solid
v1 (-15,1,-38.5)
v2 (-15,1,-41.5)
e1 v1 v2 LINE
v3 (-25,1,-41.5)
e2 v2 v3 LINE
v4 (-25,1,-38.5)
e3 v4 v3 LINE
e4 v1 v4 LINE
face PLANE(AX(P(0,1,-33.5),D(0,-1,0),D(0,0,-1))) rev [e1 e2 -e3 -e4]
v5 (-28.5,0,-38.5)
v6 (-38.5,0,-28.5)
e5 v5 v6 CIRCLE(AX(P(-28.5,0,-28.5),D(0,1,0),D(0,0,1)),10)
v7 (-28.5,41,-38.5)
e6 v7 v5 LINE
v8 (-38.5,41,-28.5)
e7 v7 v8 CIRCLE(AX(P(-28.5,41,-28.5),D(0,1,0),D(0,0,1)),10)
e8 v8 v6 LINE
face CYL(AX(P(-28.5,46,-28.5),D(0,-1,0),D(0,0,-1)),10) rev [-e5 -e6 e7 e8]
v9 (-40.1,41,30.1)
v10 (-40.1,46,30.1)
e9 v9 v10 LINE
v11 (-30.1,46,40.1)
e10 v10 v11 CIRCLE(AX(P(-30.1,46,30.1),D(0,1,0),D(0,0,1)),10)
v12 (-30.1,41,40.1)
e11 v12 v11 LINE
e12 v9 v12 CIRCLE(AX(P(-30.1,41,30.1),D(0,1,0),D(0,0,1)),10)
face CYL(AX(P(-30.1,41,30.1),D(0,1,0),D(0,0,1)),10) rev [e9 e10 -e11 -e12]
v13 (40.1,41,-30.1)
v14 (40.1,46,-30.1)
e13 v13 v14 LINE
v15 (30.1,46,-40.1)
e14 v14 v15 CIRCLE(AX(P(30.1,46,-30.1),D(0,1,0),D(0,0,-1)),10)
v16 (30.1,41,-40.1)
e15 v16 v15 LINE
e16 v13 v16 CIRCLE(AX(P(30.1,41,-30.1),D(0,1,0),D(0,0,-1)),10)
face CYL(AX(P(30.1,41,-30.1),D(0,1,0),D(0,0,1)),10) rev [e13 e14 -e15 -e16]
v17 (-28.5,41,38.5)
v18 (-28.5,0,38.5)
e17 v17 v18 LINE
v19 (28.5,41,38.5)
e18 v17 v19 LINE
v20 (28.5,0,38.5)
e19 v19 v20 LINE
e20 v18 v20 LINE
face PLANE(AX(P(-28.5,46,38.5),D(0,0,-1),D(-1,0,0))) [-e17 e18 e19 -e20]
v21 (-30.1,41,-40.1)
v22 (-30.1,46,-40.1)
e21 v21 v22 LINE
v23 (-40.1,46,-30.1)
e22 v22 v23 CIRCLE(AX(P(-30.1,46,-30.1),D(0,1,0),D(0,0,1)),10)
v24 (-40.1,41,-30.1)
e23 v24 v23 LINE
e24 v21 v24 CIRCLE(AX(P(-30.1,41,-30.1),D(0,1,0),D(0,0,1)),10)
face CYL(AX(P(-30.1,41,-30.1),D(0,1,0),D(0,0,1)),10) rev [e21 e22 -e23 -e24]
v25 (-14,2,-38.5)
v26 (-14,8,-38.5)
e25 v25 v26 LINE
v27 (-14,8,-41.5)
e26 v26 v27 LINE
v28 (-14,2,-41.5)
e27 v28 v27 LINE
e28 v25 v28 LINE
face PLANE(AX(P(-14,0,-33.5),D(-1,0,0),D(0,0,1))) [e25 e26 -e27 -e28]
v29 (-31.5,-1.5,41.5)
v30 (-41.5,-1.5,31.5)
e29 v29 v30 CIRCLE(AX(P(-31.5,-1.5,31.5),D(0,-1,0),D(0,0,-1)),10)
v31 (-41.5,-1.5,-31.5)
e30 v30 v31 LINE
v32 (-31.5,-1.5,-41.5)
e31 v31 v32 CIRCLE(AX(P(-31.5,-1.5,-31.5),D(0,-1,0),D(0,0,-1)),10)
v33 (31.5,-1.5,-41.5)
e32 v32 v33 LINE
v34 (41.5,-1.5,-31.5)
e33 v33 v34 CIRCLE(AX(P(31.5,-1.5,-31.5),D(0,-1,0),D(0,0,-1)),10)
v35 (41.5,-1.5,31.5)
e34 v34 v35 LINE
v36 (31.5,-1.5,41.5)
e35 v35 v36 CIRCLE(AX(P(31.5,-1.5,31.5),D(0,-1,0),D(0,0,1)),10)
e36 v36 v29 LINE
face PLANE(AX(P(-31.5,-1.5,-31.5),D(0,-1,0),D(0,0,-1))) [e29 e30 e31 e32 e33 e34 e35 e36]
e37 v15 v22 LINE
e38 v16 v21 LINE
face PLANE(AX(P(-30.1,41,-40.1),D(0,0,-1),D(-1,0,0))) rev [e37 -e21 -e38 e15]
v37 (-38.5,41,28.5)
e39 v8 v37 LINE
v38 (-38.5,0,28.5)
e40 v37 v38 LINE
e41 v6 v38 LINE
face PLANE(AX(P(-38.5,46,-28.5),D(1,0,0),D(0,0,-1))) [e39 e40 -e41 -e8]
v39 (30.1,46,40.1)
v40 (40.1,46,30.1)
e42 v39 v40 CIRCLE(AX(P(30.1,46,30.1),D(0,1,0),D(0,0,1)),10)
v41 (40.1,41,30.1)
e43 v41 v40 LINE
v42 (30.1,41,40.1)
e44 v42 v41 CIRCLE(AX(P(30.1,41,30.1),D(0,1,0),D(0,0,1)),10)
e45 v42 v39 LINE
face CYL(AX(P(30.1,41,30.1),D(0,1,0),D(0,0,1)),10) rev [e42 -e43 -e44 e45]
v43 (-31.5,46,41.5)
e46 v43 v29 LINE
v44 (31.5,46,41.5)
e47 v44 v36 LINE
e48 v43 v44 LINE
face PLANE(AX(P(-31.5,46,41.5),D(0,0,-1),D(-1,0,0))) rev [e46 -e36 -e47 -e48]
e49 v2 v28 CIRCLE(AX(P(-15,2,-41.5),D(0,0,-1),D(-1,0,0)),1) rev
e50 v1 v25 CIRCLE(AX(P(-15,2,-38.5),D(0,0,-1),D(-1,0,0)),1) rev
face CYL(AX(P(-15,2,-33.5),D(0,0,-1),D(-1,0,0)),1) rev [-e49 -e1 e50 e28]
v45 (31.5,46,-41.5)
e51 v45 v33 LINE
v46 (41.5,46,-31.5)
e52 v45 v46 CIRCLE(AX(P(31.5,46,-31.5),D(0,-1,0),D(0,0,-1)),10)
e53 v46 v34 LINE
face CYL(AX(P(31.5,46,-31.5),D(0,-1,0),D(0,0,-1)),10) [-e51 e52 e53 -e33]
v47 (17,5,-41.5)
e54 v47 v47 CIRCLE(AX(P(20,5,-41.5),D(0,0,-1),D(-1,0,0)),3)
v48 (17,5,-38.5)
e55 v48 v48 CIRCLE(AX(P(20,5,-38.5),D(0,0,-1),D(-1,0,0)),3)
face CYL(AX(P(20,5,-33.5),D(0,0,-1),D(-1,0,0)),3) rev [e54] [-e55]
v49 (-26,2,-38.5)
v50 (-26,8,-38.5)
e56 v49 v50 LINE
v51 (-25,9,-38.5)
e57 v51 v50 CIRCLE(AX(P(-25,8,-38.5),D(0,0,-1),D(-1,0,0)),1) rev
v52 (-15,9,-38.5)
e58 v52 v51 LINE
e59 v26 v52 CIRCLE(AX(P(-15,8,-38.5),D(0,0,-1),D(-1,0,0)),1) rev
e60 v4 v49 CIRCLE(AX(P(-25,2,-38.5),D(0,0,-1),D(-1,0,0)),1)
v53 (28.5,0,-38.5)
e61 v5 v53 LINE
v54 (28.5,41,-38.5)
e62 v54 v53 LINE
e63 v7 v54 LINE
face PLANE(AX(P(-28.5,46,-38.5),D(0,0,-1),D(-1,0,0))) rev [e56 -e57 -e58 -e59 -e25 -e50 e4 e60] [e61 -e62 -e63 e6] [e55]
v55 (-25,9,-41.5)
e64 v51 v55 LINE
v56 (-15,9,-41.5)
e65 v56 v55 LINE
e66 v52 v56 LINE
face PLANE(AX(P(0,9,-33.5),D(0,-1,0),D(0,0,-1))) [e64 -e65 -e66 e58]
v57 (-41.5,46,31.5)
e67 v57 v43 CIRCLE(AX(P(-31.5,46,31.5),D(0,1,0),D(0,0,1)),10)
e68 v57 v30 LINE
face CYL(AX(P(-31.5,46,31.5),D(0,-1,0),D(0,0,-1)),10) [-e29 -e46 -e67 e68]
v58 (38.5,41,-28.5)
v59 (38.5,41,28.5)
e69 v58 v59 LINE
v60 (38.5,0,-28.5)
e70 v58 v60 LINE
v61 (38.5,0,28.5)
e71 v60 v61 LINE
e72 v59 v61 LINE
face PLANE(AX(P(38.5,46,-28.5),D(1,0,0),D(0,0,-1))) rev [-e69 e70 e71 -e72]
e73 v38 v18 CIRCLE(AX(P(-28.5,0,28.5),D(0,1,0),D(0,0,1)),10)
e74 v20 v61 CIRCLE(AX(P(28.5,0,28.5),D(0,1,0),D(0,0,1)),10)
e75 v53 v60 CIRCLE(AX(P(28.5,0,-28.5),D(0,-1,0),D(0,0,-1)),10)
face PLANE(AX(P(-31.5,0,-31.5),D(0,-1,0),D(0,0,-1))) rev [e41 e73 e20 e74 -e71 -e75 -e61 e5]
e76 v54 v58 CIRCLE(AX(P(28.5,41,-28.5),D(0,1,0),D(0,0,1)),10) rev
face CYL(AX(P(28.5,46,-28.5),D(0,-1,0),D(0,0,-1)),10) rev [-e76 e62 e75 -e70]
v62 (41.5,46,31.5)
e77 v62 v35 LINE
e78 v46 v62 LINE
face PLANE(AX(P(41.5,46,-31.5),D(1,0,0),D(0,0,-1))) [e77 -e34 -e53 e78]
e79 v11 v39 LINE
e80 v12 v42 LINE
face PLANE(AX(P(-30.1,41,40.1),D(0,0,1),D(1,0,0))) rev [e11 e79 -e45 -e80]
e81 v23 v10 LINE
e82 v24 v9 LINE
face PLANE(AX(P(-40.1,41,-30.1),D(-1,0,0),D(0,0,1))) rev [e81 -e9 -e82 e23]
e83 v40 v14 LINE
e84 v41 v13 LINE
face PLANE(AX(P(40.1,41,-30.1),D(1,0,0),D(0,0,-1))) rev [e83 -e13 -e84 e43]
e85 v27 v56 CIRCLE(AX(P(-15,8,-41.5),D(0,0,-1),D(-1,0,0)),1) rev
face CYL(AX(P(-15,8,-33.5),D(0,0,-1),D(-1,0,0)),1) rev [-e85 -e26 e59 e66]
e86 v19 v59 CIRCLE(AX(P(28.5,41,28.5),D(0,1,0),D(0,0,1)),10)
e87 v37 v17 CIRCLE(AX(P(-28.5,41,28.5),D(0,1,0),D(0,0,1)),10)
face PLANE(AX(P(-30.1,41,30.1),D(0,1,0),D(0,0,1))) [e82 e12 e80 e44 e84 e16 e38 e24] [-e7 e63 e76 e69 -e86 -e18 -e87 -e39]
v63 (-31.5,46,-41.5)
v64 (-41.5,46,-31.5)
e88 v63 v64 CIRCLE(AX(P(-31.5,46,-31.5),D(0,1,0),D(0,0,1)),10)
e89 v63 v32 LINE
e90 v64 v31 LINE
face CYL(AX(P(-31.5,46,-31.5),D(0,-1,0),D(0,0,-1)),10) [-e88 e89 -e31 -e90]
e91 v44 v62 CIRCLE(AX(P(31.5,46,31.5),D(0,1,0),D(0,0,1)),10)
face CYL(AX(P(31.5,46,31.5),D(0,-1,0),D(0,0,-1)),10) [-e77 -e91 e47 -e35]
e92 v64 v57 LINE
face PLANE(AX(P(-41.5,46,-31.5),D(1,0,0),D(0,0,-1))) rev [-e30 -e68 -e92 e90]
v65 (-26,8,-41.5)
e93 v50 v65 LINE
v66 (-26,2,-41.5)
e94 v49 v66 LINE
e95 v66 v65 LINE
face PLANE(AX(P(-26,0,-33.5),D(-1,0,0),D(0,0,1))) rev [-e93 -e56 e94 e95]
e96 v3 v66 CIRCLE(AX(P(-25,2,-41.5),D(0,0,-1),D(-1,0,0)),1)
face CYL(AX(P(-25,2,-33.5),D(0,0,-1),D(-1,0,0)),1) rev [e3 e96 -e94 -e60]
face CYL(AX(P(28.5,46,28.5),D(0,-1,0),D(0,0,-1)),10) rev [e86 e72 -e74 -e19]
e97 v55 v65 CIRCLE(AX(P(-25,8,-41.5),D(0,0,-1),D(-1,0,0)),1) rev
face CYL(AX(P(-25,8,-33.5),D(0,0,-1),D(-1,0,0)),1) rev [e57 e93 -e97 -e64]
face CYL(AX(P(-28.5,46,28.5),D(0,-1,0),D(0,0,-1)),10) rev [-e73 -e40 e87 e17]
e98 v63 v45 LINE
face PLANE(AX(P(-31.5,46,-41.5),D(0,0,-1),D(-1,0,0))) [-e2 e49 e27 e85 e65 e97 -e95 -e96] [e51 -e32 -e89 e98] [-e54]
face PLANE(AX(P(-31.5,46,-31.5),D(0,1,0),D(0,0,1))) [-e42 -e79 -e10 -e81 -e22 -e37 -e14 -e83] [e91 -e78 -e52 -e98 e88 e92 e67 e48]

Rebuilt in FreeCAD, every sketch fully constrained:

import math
import FreeCAD as App
import Part
import Sketcher
Q = App.Units.Quantity

doc = App.newDocument("Part")
body = doc.addObject("PartDesign::Body", "Body")

sketch1 = body.newObject("Sketcher::SketchObject", "Sketch")
sketch1.AttachmentSupport = (doc.getObject("XZ_Plane"), [""])
sketch1.MapMode = "FlatFace"
sketch1.addGeometry(Part.LineSegment(App.Vector(32, -42, 0), App.Vector(-32, -42, 0)), False)
sketch1.addGeometry(Part.ArcOfCircle(Part.Circle(App.Vector(-32, -32, 0), App.Vector(0, 0, 1), 10), math.radians(180), math.radians(270)), False)
sketch1.addGeometry(Part.LineSegment(App.Vector(-42, -32, 0), App.Vector(-42, 32, 0)), False)
sketch1.addGeometry(Part.ArcOfCircle(Part.Circle(App.Vector(-32, 32, 0), App.Vector(0, 0, 1), 10), math.radians(90), math.radians(180)), False)
sketch1.addGeometry(Part.LineSegment(App.Vector(-32, 42, 0), App.Vector(32, 42, 0)), False)
sketch1.addGeometry(Part.ArcOfCircle(Part.Circle(App.Vector(32, 32, 0), App.Vector(0, 0, 1), 10), math.radians(0), math.radians(90)), False)
sketch1.addGeometry(Part.LineSegment(App.Vector(42, 32, 0), App.Vector(42, -32, 0)), False)
sketch1.addGeometry(Part.ArcOfCircle(Part.Circle(App.Vector(32, -32, 0), App.Vector(0, 0, 1), 10), math.radians(-90), math.radians(0)), False)
sketch1.addGeometry(Part.LineSegment(App.Vector(-28, -38, 0), App.Vector(28, -38, 0)), False)
sketch1.addGeometry(Part.ArcOfCircle(Part.Circle(App.Vector(28, -28, 0), App.Vector(0, 0, 1), 10), math.radians(-90), math.radians(0)), False)
sketch1.addGeometry(Part.LineSegment(App.Vector(38, -28, 0), App.Vector(38, 28, 0)), False)
sketch1.addGeometry(Part.ArcOfCircle(Part.Circle(App.Vector(28, 28, 0), App.Vector(0, 0, 1), 10), math.radians(0), math.radians(90)), False)
sketch1.addGeometry(Part.LineSegment(App.Vector(28, 38, 0), App.Vector(-28, 38, 0)), False)
sketch1.addGeometry(Part.ArcOfCircle(Part.Circle(App.Vector(-28, 28, 0), App.Vector(0, 0, 1), 10), math.radians(90), math.radians(180)), False)
sketch1.addGeometry(Part.LineSegment(App.Vector(-38, 28, 0), App.Vector(-38, -28, 0)), False)
sketch1.addGeometry(Part.ArcOfCircle(Part.Circle(App.Vector(-28, -28, 0), App.Vector(0, 0, 1), 10), math.radians(180), math.radians(270)), False)
sketch1.addConstraint(Sketcher.Constraint("Tangent", 0, 2, 1, 2))
sketch1.addConstraint(Sketcher.Constraint("Tangent", 1, 1, 2, 1))
sketch1.addConstraint(Sketcher.Constraint("Tangent", 2, 2, 3, 2))
sketch1.addConstraint(Sketcher.Constraint("Tangent", 3, 1, 4, 1))
sketch1.addConstraint(Sketcher.Constraint("Tangent", 4, 2, 5, 2))
sketch1.addConstraint(Sketcher.Constraint("Tangent", 5, 1, 6, 1))
sketch1.addConstraint(Sketcher.Constraint("Tangent", 6, 2, 7, 2))
sketch1.addConstraint(Sketcher.Constraint("Tangent", 7, 1, 0, 1))
sketch1.addConstraint(Sketcher.Constraint("Tangent", 8, 2, 9, 1))
sketch1.addConstraint(Sketcher.Constraint("Tangent", 9, 2, 10, 1))
sketch1.addConstraint(Sketcher.Constraint("Tangent", 10, 2, 11, 1))
sketch1.addConstraint(Sketcher.Constraint("Tangent", 11, 2, 12, 1))
sketch1.addConstraint(Sketcher.Constraint("Tangent", 12, 2, 13, 1))
sketch1.addConstraint(Sketcher.Constraint("Tangent", 13, 2, 14, 1))
sketch1.addConstraint(Sketcher.Constraint("Tangent", 14, 2, 15, 1))
sketch1.addConstraint(Sketcher.Constraint("Tangent", 15, 2, 8, 1))
sketch1.addConstraint(Sketcher.Constraint("Horizontal", 0))
sketch1.addConstraint(Sketcher.Constraint("Vertical", 2))
sketch1.addConstraint(Sketcher.Constraint("Horizontal", 4))
sketch1.addConstraint(Sketcher.Constraint("Vertical", 6))
sketch1.addConstraint(Sketcher.Constraint("Horizontal", 8))
sketch1.addConstraint(Sketcher.Constraint("Vertical", 10))
sketch1.addConstraint(Sketcher.Constraint("Horizontal", 12))
sketch1.addConstraint(Sketcher.Constraint("Vertical", 14))
sketch1.addConstraint(Sketcher.Constraint("Equal", 1, 3))
sketch1.addConstraint(Sketcher.Constraint("Equal", 3, 5))
sketch1.addConstraint(Sketcher.Constraint("Equal", 5, 7))
sketch1.addConstraint(Sketcher.Constraint("Equal", 7, 9))
sketch1.addConstraint(Sketcher.Constraint("Equal", 9, 11))
sketch1.addConstraint(Sketcher.Constraint("Equal", 11, 13))
sketch1.addConstraint(Sketcher.Constraint("Equal", 13, 15))
sketch1.addConstraint(Sketcher.Constraint("Symmetric", 1, 3, 5, 3, -1, 1))
sketch1.addConstraint(Sketcher.Constraint("Symmetric", 9, 3, 13, 3, -1, 1))
sketch1.addConstraint(Sketcher.Constraint("Equal", 4, 2))
sketch1.addConstraint(Sketcher.Constraint("Equal", 12, 10))
sketch1.addConstraint(Sketcher.Constraint("Radius", 1, Q("10 mm")))
sketch1.addConstraint(Sketcher.Constraint("DistanceX", 0, 2, 0, 1, Q("63 mm")))
sketch1.addConstraint(Sketcher.Constraint("DistanceX", 8, 1, 8, 2, Q("57 mm")))
pad1 = body.newObject("PartDesign::Pad", "Pad")
pad1.Profile = sketch1
pad1.Length = 46
pad1.Reversed = True

sketch2 = body.newObject("Sketcher::SketchObject", "Sketch001")
sketch2.AttachmentSupport = (doc.getObject("XZ_Plane"), [""])
sketch2.MapMode = "FlatFace"
sketch2.AttachmentOffset = App.Placement(App.Vector(0, 0, -46), App.Rotation())
sketch2.addGeometry(Part.LineSegment(App.Vector(30, -40, 0), App.Vector(-30, -40, 0)), False)
sketch2.addGeometry(Part.ArcOfCircle(Part.Circle(App.Vector(-30, -30, 0), App.Vector(0, 0, 1), 10), math.radians(180), math.radians(270)), False)
sketch2.addGeometry(Part.LineSegment(App.Vector(-40, -30, 0), App.Vector(-40, 30, 0)), False)
sketch2.addGeometry(Part.ArcOfCircle(Part.Circle(App.Vector(-30, 30, 0), App.Vector(0, 0, 1), 10), math.radians(90), math.radians(180)), False)
sketch2.addGeometry(Part.LineSegment(App.Vector(-30, 40, 0), App.Vector(30, 40, 0)), False)
sketch2.addGeometry(Part.ArcOfCircle(Part.Circle(App.Vector(30, 30, 0), App.Vector(0, 0, 1), 10), math.radians(0), math.radians(90)), False)
sketch2.addGeometry(Part.LineSegment(App.Vector(40, 30, 0), App.Vector(40, -30, 0)), False)
sketch2.addGeometry(Part.ArcOfCircle(Part.Circle(App.Vector(30, -30, 0), App.Vector(0, 0, 1), 10), math.radians(-90), math.radians(0)), False)
sketch2.addConstraint(Sketcher.Constraint("Tangent", 0, 2, 1, 2))
sketch2.addConstraint(Sketcher.Constraint("Tangent", 1, 1, 2, 1))
sketch2.addConstraint(Sketcher.Constraint("Tangent", 2, 2, 3, 2))
sketch2.addConstraint(Sketcher.Constraint("Tangent", 3, 1, 4, 1))
sketch2.addConstraint(Sketcher.Constraint("Tangent", 4, 2, 5, 2))
sketch2.addConstraint(Sketcher.Constraint("Tangent", 5, 1, 6, 1))
sketch2.addConstraint(Sketcher.Constraint("Tangent", 6, 2, 7, 2))
sketch2.addConstraint(Sketcher.Constraint("Tangent", 7, 1, 0, 1))
sketch2.addConstraint(Sketcher.Constraint("Horizontal", 0))
sketch2.addConstraint(Sketcher.Constraint("Vertical", 2))
sketch2.addConstraint(Sketcher.Constraint("Horizontal", 4))
sketch2.addConstraint(Sketcher.Constraint("Vertical", 6))
sketch2.addConstraint(Sketcher.Constraint("Equal", 1, 3))
sketch2.addConstraint(Sketcher.Constraint("Equal", 3, 5))
sketch2.addConstraint(Sketcher.Constraint("Equal", 5, 7))
sketch2.addConstraint(Sketcher.Constraint("Symmetric", 1, 3, 5, 3, -1, 1))
sketch2.addConstraint(Sketcher.Constraint("Equal", 4, 2))
sketch2.addConstraint(Sketcher.Constraint("Radius", 1, Q("10 mm")))
sketch2.addConstraint(Sketcher.Constraint("DistanceX", 0, 2, 0, 1, Q("60.2 mm")))
pocket1 = body.newObject("PartDesign::Pocket", "Pocket")
pocket1.Profile = sketch2
pocket1.Length = 5
pocket1.Reversed = True

sketch3 = body.newObject("Sketcher::SketchObject", "Sketch002")
sketch3.AttachmentSupport = (doc.getObject("XZ_Plane"), [""])
sketch3.MapMode = "FlatFace"
sketch3.AttachmentOffset = App.Placement(App.Vector(0, 0, 1.5), App.Rotation())
sketch3.addGeometry(Part.LineSegment(App.Vector(32, 42, 0), App.Vector(-32, 42, 0)), False)
sketch3.addGeometry(Part.ArcOfCircle(Part.Circle(App.Vector(-32, 32, 0), App.Vector(0, 0, 1), 10), math.radians(90), math.radians(180)), False)
sketch3.addGeometry(Part.LineSegment(App.Vector(-42, 32, 0), App.Vector(-42, -32, 0)), False)
sketch3.addGeometry(Part.ArcOfCircle(Part.Circle(App.Vector(-32, -32, 0), App.Vector(0, 0, 1), 10), math.radians(180), math.radians(270)), False)
sketch3.addGeometry(Part.LineSegment(App.Vector(-32, -42, 0), App.Vector(32, -42, 0)), False)
sketch3.addGeometry(Part.ArcOfCircle(Part.Circle(App.Vector(32, -32, 0), App.Vector(0, 0, 1), 10), math.radians(-90), math.radians(0)), False)
sketch3.addGeometry(Part.LineSegment(App.Vector(42, -32, 0), App.Vector(42, 32, 0)), False)
sketch3.addGeometry(Part.ArcOfCircle(Part.Circle(App.Vector(32, 32, 0), App.Vector(0, 0, 1), 10), math.radians(0), math.radians(90)), False)
sketch3.addConstraint(Sketcher.Constraint("Tangent", 0, 2, 1, 1))
sketch3.addConstraint(Sketcher.Constraint("Tangent", 1, 2, 2, 1))
sketch3.addConstraint(Sketcher.Constraint("Tangent", 2, 2, 3, 1))
sketch3.addConstraint(Sketcher.Constraint("Tangent", 3, 2, 4, 1))
sketch3.addConstraint(Sketcher.Constraint("Tangent", 4, 2, 5, 1))
sketch3.addConstraint(Sketcher.Constraint("Tangent", 5, 2, 6, 1))
sketch3.addConstraint(Sketcher.Constraint("Tangent", 6, 2, 7, 1))
sketch3.addConstraint(Sketcher.Constraint("Tangent", 7, 2, 0, 1))
sketch3.addConstraint(Sketcher.Constraint("Horizontal", 0))
sketch3.addConstraint(Sketcher.Constraint("Vertical", 2))
sketch3.addConstraint(Sketcher.Constraint("Horizontal", 4))
sketch3.addConstraint(Sketcher.Constraint("Vertical", 6))
sketch3.addConstraint(Sketcher.Constraint("Equal", 1, 3))
sketch3.addConstraint(Sketcher.Constraint("Equal", 3, 5))
sketch3.addConstraint(Sketcher.Constraint("Equal", 5, 7))
sketch3.addConstraint(Sketcher.Constraint("Symmetric", 1, 3, 5, 3, -1, 1))
sketch3.addConstraint(Sketcher.Constraint("Equal", 4, 2))
sketch3.addConstraint(Sketcher.Constraint("Radius", 1, Q("10 mm")))
sketch3.addConstraint(Sketcher.Constraint("DistanceX", 0, 2, 0, 1, Q("63 mm")))
pad2 = body.newObject("PartDesign::Pad", "Pad001")
pad2.Profile = sketch3
pad2.Length = 1.5
pad2.Reversed = True

sketch4 = body.newObject("Sketcher::SketchObject", "Sketch003")
sketch4.AttachmentSupport = (doc.getObject("XY_Plane"), [""])
sketch4.MapMode = "FlatFace"
sketch4.AttachmentOffset = App.Placement(App.Vector(0, 0, -41.5), App.Rotation())
sketch4.addGeometry(Part.Circle(App.Vector(20, 5, 0), App.Vector(0, 0, 1), 3), False)
sketch4.addGeometry(Part.LineSegment(App.Vector(-15, 1, 0), App.Vector(-25, 1, 0)), False)
sketch4.addGeometry(Part.ArcOfCircle(Part.Circle(App.Vector(-25, 2, 0), App.Vector(0, 0, 1), 1), math.radians(-180), math.radians(-90)), False)
sketch4.addGeometry(Part.LineSegment(App.Vector(-26, 2, 0), App.Vector(-26, 8, 0)), False)
sketch4.addGeometry(Part.ArcOfCircle(Part.Circle(App.Vector(-25, 8, 0), App.Vector(0, 0, 1), 1), math.radians(90), math.radians(180)), False)
sketch4.addGeometry(Part.LineSegment(App.Vector(-25, 9, 0), App.Vector(-15, 9, 0)), False)
sketch4.addGeometry(Part.ArcOfCircle(Part.Circle(App.Vector(-15, 8, 0), App.Vector(0, 0, 1), 1), math.radians(0), math.radians(90)), False)
sketch4.addGeometry(Part.LineSegment(App.Vector(-14, 8, 0), App.Vector(-14, 2, 0)), False)
sketch4.addGeometry(Part.ArcOfCircle(Part.Circle(App.Vector(-15, 2, 0), App.Vector(0, 0, 1), 1), math.radians(-90), math.radians(0)), False)
sketch4.addConstraint(Sketcher.Constraint("Tangent", 1, 2, 2, 2))
sketch4.addConstraint(Sketcher.Constraint("Tangent", 2, 1, 3, 1))
sketch4.addConstraint(Sketcher.Constraint("Tangent", 3, 2, 4, 2))
sketch4.addConstraint(Sketcher.Constraint("Tangent", 4, 1, 5, 1))
sketch4.addConstraint(Sketcher.Constraint("Tangent", 5, 2, 6, 2))
sketch4.addConstraint(Sketcher.Constraint("Tangent", 6, 1, 7, 1))
sketch4.addConstraint(Sketcher.Constraint("Tangent", 7, 2, 8, 2))
sketch4.addConstraint(Sketcher.Constraint("Tangent", 8, 1, 1, 1))
sketch4.addConstraint(Sketcher.Constraint("Horizontal", 1))
sketch4.addConstraint(Sketcher.Constraint("Vertical", 3))
sketch4.addConstraint(Sketcher.Constraint("Horizontal", 5))
sketch4.addConstraint(Sketcher.Constraint("Vertical", 7))
sketch4.addConstraint(Sketcher.Constraint("Equal", 2, 4))
sketch4.addConstraint(Sketcher.Constraint("Equal", 4, 6))
sketch4.addConstraint(Sketcher.Constraint("Equal", 6, 8))
sketch4.addConstraint(Sketcher.Constraint("Diameter", 0, Q("6 mm")))
sketch4.addConstraint(Sketcher.Constraint("Radius", 2, Q("1 mm")))
sketch4.addConstraint(Sketcher.Constraint("DistanceX", 1, 2, 1, 1, Q("10 mm")))
sketch4.addConstraint(Sketcher.Constraint("DistanceY", 3, 1, 3, 2, Q("6 mm")))
sketch4.addConstraint(Sketcher.Constraint("DistanceX", -1, 1, 0, 3, Q("20 mm")))
sketch4.addConstraint(Sketcher.Constraint("DistanceY", -1, 1, 0, 3, Q("5 mm")))
sketch4.addConstraint(Sketcher.Constraint("DistanceX", 2, 3, -1, 1, Q("25 mm")))
sketch4.addConstraint(Sketcher.Constraint("DistanceY", -1, 1, 2, 3, Q("2 mm")))
pocket2 = body.newObject("PartDesign::Pocket", "Pocket001")
pocket2.Profile = sketch4
pocket2.Length = 8
pocket2.Reversed = True

doc.recompute()
